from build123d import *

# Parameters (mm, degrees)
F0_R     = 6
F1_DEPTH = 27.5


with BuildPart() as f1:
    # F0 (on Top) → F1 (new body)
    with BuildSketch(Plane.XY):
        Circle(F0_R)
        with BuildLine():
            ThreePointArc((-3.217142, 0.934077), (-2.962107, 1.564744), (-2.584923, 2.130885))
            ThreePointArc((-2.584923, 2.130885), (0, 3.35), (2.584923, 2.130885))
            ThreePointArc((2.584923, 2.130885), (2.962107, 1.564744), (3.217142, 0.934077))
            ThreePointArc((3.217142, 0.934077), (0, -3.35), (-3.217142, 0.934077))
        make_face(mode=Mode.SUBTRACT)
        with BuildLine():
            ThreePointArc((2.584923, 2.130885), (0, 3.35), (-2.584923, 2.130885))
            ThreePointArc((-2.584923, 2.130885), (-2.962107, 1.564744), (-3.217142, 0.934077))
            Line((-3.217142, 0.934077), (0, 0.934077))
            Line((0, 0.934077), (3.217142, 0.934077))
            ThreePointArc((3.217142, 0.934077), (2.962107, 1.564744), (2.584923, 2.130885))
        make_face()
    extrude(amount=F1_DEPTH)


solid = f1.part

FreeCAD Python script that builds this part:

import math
import FreeCAD as App
import Part
import Sketcher

V = App.Vector

doc = App.newDocument("Part")
body = doc.addObject("PartDesign::Body", "Body")

# Sketch on XY plane
sketch1 = body.newObject("Sketcher::SketchObject", "Sketch")
sketch1.AttachmentSupport = (doc.getObject("XY_Plane"), [""])
sketch1.MapMode = "FlatFace"
sketch1.addGeometry([
    Part.Circle(V(0, 0, 0), V(0, 0, 1), 6),
    Part.ArcOfCircle(Part.Circle(V(0, 0, 0), V(0, 0, 1), 3.4), math.radians(164), math.radians(376)),
    Part.LineSegment(V(-3.2, 0.9, 0), V(3.2, 0.9, 0)),
], False)
sketch1.addConstraint([
    Sketcher.Constraint("Coincident", 1, 1, 2, 1),
    Sketcher.Constraint("Coincident", 2, 2, 1, 2),
    Sketcher.Constraint("Horizontal", 2),
    Sketcher.Constraint("Coincident", 0, 3, -1, 1),
    Sketcher.Constraint("Coincident", 1, 3, -1, 1),
    Sketcher.Constraint("Diameter", 0, 12.0),
    Sketcher.Constraint("Radius", 1, 3.35),
    Sketcher.Constraint("DistanceX", 2, 1, 2, 2, 6.434284),
])
pad1 = body.newObject("PartDesign::Pad", "Pad")
pad1.Profile = sketch1
pad1.Length = 27.5

doc.recompute()
